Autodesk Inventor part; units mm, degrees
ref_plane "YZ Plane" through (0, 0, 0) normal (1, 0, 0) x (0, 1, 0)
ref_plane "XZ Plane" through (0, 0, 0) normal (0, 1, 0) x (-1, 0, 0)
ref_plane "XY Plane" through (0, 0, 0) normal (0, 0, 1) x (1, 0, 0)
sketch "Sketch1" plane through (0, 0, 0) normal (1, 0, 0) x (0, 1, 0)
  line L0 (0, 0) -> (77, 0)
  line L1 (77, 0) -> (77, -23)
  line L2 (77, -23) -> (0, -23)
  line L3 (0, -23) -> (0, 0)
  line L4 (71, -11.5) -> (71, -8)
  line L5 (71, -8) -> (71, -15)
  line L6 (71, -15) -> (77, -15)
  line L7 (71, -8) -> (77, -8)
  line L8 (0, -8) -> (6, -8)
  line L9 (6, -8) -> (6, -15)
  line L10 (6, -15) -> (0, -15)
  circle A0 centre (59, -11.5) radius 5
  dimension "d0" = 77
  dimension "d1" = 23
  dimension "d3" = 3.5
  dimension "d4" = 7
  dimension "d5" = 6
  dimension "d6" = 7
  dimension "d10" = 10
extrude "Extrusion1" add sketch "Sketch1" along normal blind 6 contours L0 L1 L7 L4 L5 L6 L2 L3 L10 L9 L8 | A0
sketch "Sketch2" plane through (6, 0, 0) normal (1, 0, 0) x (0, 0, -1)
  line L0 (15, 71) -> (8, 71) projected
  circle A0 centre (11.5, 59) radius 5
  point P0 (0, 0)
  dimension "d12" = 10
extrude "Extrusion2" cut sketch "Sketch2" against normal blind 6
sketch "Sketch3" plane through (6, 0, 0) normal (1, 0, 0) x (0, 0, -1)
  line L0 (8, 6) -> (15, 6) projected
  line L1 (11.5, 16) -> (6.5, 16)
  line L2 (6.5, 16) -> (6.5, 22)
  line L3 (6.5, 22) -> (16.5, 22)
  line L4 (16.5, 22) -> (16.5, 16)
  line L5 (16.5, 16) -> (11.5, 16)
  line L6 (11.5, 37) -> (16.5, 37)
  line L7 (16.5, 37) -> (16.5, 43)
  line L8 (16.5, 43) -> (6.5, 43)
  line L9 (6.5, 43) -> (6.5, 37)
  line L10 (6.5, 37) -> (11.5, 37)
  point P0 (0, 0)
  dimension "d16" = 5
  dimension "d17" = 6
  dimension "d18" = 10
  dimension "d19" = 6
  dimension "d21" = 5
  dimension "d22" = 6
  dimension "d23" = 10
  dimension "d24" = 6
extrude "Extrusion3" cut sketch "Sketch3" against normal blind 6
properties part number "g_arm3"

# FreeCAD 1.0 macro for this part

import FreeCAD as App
import Part
import Sketcher

doc = App.newDocument("Part")
body = doc.addObject("PartDesign::Body", "Body")

# Sketch on YZ plane
sketch1 = doc.addObject("Sketcher::SketchObject", "Sketch")
body.addObject(sketch1)
sketch1.AttachmentSupport = (doc.YZ_Plane, [""])
sketch1.MapMode = "FlatFace"
sketch1.addGeometry(Part.LineSegment(App.Vector(77, 0, 0), App.Vector(0, 0, 0)), False)
sketch1.addGeometry(Part.LineSegment(App.Vector(0, 0, 0), App.Vector(0, -8, 0)), False)
sketch1.addGeometry(Part.LineSegment(App.Vector(0, -8, 0), App.Vector(6, -8, 0)), False)
sketch1.addGeometry(Part.LineSegment(App.Vector(6, -8, 0), App.Vector(6, -15, 0)), False)
sketch1.addGeometry(Part.LineSegment(App.Vector(6, -15, 0), App.Vector(0, -15, 0)), False)
sketch1.addGeometry(Part.LineSegment(App.Vector(0, -15, 0), App.Vector(0, -23, 0)), False)
sketch1.addGeometry(Part.LineSegment(App.Vector(0, -23, 0), App.Vector(77, -23, 0)), False)
sketch1.addGeometry(Part.LineSegment(App.Vector(77, -23, 0), App.Vector(77, -15, 0)), False)
sketch1.addGeometry(Part.LineSegment(App.Vector(77, -15, 0), App.Vector(71, -15, 0)), False)
sketch1.addGeometry(Part.LineSegment(App.Vector(71, -15, 0), App.Vector(71, -8, 0)), False)
sketch1.addGeometry(Part.LineSegment(App.Vector(71, -8, 0), App.Vector(77, -8, 0)), False)
sketch1.addGeometry(Part.LineSegment(App.Vector(77, -8, 0), App.Vector(77, 0, 0)), False)
sketch1.addConstraint(Sketcher.Constraint("Coincident", 0, 2, 1, 1))
sketch1.addConstraint(Sketcher.Constraint("Coincident", 1, 2, 2, 1))
sketch1.addConstraint(Sketcher.Constraint("Coincident", 2, 2, 3, 1))
sketch1.addConstraint(Sketcher.Constraint("Coincident", 3, 2, 4, 1))
sketch1.addConstraint(Sketcher.Constraint("Coincident", 4, 2, 5, 1))
sketch1.addConstraint(Sketcher.Constraint("Coincident", 5, 2, 6, 1))
sketch1.addConstraint(Sketcher.Constraint("Coincident", 6, 2, 7, 1))
sketch1.addConstraint(Sketcher.Constraint("Coincident", 7, 2, 8, 1))
sketch1.addConstraint(Sketcher.Constraint("Coincident", 8, 2, 9, 1))
sketch1.addConstraint(Sketcher.Constraint("Coincident", 9, 2, 10, 1))
sketch1.addConstraint(Sketcher.Constraint("Coincident", 10, 2, 11, 1))
sketch1.addConstraint(Sketcher.Constraint("Coincident", 11, 2, 0, 1))
sketch1.addConstraint(Sketcher.Constraint("Horizontal", 0))
sketch1.addConstraint(Sketcher.Constraint("Vertical", 1))
sketch1.addConstraint(Sketcher.Constraint("Horizontal", 2))
sketch1.addConstraint(Sketcher.Constraint("Vertical", 3))
sketch1.addConstraint(Sketcher.Constraint("Horizontal", 4))
sketch1.addConstraint(Sketcher.Constraint("Vertical", 5))
sketch1.addConstraint(Sketcher.Constraint("Horizontal", 6))
sketch1.addConstraint(Sketcher.Constraint("Vertical", 7))
sketch1.addConstraint(Sketcher.Constraint("Horizontal", 8))
sketch1.addConstraint(Sketcher.Constraint("Vertical", 9))
sketch1.addConstraint(Sketcher.Constraint("Horizontal", 10))
sketch1.addConstraint(Sketcher.Constraint("Vertical", 11))
sketch1.addConstraint(Sketcher.Constraint("Coincident", 0, 2, -1, 1))
sketch1.addConstraint(Sketcher.Constraint("PointOnObject", 4, 2, -2))
sketch1.addConstraint(Sketcher.Constraint("Horizontal", 4, 2, 7, 2))
sketch1.addConstraint(Sketcher.Constraint("Horizontal", 2, 2, 9, 2))
sketch1.addConstraint(Sketcher.Constraint("Vertical", 7, 2, 10, 2))
sketch1.addConstraint(Sketcher.Constraint("Equal", 4, 8))
sketch1.addConstraint(Sketcher.Constraint("Equal", 1, 5))
sketch1.addConstraint(Sketcher.Constraint("DistanceX", 0, 2, 0, 1, 77.0))
sketch1.addConstraint(Sketcher.Constraint("DistanceX", 2, 1, 2, 2, 6.0))
sketch1.addConstraint(Sketcher.Constraint("DistanceY", 3, 2, 3, 1, 7.0))
sketch1.addConstraint(Sketcher.Constraint("DistanceY", 5, 2, -1, 1, 23.0))
pad1 = doc.addObject("PartDesign::Pad", "Pad")
body.addObject(pad1)
pad1.Profile = sketch1
pad1.Length = 6

# Sketch on YZ plane
sketch2 = doc.addObject("Sketcher::SketchObject", "Sketch001")
body.addObject(sketch2)
sketch2.AttachmentSupport = (doc.YZ_Plane, [""])
sketch2.MapMode = "FlatFace"
sketch2.AttachmentOffset = App.Placement(App.Vector(0, 0, 6), App.Rotation())
sketch2.addGeometry(Part.Circle(App.Vector(59, -12, 0), App.Vector(0, 0, 1), 5), False)
sketch2.addConstraint(Sketcher.Constraint("Diameter", 0, 10.0))
sketch2.addConstraint(Sketcher.Constraint("DistanceX", -1, 1, 0, 3, 59.0))
sketch2.addConstraint(Sketcher.Constraint("DistanceY", 0, 3, -1, 1, 11.5))
pocket1 = doc.addObject("PartDesign::Pocket", "Pocket")
body.addObject(pocket1)
pocket1.Profile = sketch2
pocket1.Length = 6

# Sketch on YZ plane
sketch3 = doc.addObject("Sketcher::SketchObject", "Sketch002")
body.addObject(sketch3)
sketch3.AttachmentSupport = (doc.YZ_Plane, [""])
sketch3.MapMode = "FlatFace"
sketch3.AttachmentOffset = App.Placement(App.Vector(0, 0, 6), App.Rotation())
sketch3.addGeometry(Part.LineSegment(App.Vector(16, -6, 0), App.Vector(16, -16, 0)), False)
sketch3.addGeometry(Part.LineSegment(App.Vector(16, -16, 0), App.Vector(22, -16, 0)), False)
sketch3.addGeometry(Part.LineSegment(App.Vector(22, -16, 0), App.Vector(22, -6, 0)), False)
sketch3.addGeometry(Part.LineSegment(App.Vector(22, -6, 0), App.Vector(16, -6, 0)), False)
sketch3.addGeometry(Part.LineSegment(App.Vector(37, -6, 0), App.Vector(37, -16, 0)), False)
sketch3.addGeometry(Part.LineSegment(App.Vector(37, -16, 0), App.Vector(43, -16, 0)), False)
sketch3.addGeometry(Part.LineSegment(App.Vector(43, -16, 0), App.Vector(43, -6, 0)), False)
sketch3.addGeometry(Part.LineSegment(App.Vector(43, -6, 0), App.Vector(37, -6, 0)), False)
sketch3.addConstraint(Sketcher.Constraint("Coincident", 0, 2, 1, 1))
sketch3.addConstraint(Sketcher.Constraint("Coincident", 1, 2, 2, 1))
sketch3.addConstraint(Sketcher.Constraint("Coincident", 2, 2, 3, 1))
sketch3.addConstraint(Sketcher.Constraint("Coincident", 3, 2, 0, 1))
sketch3.addConstraint(Sketcher.Constraint("Coincident", 4, 2, 5, 1))
sketch3.addConstraint(Sketcher.Constraint("Coincident", 5, 2, 6, 1))
sketch3.addConstraint(Sketcher.Constraint("Coincident", 6, 2, 7, 1))
sketch3.addConstraint(Sketcher.Constraint("Coincident", 7, 2, 4, 1))
sketch3.addConstraint(Sketcher.Constraint("Vertical", 0))
sketch3.addConstraint(Sketcher.Constraint("Horizontal", 1))
sketch3.addConstraint(Sketcher.Constraint("Vertical", 2))
sketch3.addConstraint(Sketcher.Constraint("Horizontal", 3))
sketch3.addConstraint(Sketcher.Constraint("Vertical", 4))
sketch3.addConstraint(Sketcher.Constraint("Horizontal", 5))
sketch3.addConstraint(Sketcher.Constraint("Vertical", 6))
sketch3.addConstraint(Sketcher.Constraint("Horizontal", 7))
sketch3.addConstraint(Sketcher.Constraint("Horizontal", 1, 2, 4, 2))
sketch3.addConstraint(Sketcher.Constraint("Horizontal", 3, 2, 6, 2))
sketch3.addConstraint(Sketcher.Constraint("Equal", 3, 5))
sketch3.addConstraint(Sketcher.Constraint("DistanceX", 1, 1, 1, 2, 6.0))
sketch3.addConstraint(Sketcher.Constraint("DistanceY", 0, 2, 0, 1, 10.0))
sketch3.addConstraint(Sketcher.Constraint("DistanceX", -1, 1, 0, 2, 16.0))
sketch3.addConstraint(Sketcher.Constraint("DistanceX", -1, 1, 4, 2, 37.0))
sketch3.addConstraint(Sketcher.Constraint("DistanceY", 0, 2, -1, 1, 16.5))
pocket2 = doc.addObject("PartDesign::Pocket", "Pocket001")
body.addObject(pocket2)
pocket2.Profile = sketch3
pocket2.Length = 6

doc.recompute()
